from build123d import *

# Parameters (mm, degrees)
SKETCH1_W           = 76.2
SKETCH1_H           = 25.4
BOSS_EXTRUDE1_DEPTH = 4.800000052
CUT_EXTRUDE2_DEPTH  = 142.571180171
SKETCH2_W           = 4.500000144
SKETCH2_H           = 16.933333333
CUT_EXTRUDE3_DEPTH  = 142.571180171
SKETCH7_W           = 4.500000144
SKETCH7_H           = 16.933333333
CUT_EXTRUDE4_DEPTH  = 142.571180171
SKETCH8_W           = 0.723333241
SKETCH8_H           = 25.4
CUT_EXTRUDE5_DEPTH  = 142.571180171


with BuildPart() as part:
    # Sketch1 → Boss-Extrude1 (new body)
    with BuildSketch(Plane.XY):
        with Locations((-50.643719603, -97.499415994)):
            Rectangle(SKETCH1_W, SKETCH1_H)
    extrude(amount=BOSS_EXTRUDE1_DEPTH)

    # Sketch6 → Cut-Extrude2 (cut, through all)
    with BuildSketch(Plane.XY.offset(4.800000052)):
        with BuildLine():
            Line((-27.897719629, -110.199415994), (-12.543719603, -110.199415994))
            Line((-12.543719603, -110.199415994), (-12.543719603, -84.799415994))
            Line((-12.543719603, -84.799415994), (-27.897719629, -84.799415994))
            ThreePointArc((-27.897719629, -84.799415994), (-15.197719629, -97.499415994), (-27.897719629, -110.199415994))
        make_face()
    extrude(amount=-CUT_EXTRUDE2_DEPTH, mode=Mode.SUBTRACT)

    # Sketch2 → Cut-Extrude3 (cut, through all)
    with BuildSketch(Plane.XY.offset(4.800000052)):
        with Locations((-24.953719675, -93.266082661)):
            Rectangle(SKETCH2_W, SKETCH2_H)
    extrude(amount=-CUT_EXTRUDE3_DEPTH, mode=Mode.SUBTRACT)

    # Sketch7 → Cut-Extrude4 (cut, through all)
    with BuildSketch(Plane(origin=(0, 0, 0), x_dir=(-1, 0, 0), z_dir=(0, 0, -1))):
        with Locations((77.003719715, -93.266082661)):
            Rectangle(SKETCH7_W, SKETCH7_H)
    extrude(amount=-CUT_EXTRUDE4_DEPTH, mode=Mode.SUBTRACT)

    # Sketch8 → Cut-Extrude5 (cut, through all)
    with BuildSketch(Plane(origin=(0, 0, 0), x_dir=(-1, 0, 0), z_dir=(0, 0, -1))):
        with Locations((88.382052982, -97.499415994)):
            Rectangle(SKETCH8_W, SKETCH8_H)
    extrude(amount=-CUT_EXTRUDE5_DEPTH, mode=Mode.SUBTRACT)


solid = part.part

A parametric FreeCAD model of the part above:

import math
import FreeCAD as App
import Part
import Sketcher
from FreeCAD import Vector

doc = App.newDocument("Part")
body = doc.addObject("PartDesign::Body", "Body")

# Sketch on XY plane
sketch1 = body.newObject("Sketcher::SketchObject", "Sketch")
sketch1.AttachmentSupport = (doc.getObject("XY_Plane"), [""])
sketch1.MapMode = "FlatFace"
sketch1.addGeometry([
    Part.LineSegment(Vector(-89, -85, 0), Vector(-89, -110, 0)),
    Part.LineSegment(Vector(-89, -110, 0), Vector(-13, -110, 0)),
    Part.LineSegment(Vector(-13, -110, 0), Vector(-13, -85, 0)),
    Part.LineSegment(Vector(-13, -85, 0), Vector(-89, -85, 0)),
], False)
sketch1.addConstraint([
    Sketcher.Constraint("Coincident", 0, 2, 1, 1),
    Sketcher.Constraint("Coincident", 1, 2, 2, 1),
    Sketcher.Constraint("Coincident", 2, 2, 3, 1),
    Sketcher.Constraint("Coincident", 3, 2, 0, 1),
    Sketcher.Constraint("Vertical", 0),
    Sketcher.Constraint("Horizontal", 1),
    Sketcher.Constraint("Vertical", 2),
    Sketcher.Constraint("Horizontal", 3),
    Sketcher.Constraint("DistanceX", 1, 1, 1, 2, 76.2),
    Sketcher.Constraint("DistanceY", 0, 2, 0, 1, 25.4),
    Sketcher.Constraint("DistanceX", 0, 2, -1, 1, 88.74372),
    Sketcher.Constraint("DistanceY", 0, 2, -1, 1, 110.199416),
])
pad1 = body.newObject("PartDesign::Pad", "Pad")
pad1.Profile = sketch1
pad1.Length = 4.8

# Sketch on XY plane
sketch2 = body.newObject("Sketcher::SketchObject", "Sketch001")
sketch2.AttachmentSupport = (doc.getObject("XY_Plane"), [""])
sketch2.MapMode = "FlatFace"
sketch2.AttachmentOffset = App.Placement(Vector(0, 0, 4.8), App.Rotation())
sketch2.addGeometry([
    Part.LineSegment(Vector(-28, -110, 0), Vector(-13, -110, 0)),
    Part.LineSegment(Vector(-13, -110, 0), Vector(-13, -85, 0)),
    Part.LineSegment(Vector(-13, -85, 0), Vector(-28, -85, 0)),
    Part.ArcOfCircle(Part.Circle(Vector(-28, -97, 0), Vector(0, 0, 1), 13), math.radians(-90), math.radians(90)),
], False)
sketch2.addConstraint([
    Sketcher.Constraint("Coincident", 0, 2, 1, 1),
    Sketcher.Constraint("Coincident", 1, 2, 2, 1),
    Sketcher.Constraint("Tangent", 2, 2, 3, 2),
    Sketcher.Constraint("Tangent", 3, 1, 0, 1),
    Sketcher.Constraint("Horizontal", 0),
    Sketcher.Constraint("Vertical", 1),
    Sketcher.Constraint("Horizontal", 2),
    Sketcher.Constraint("Radius", 3, 12.7),
    Sketcher.Constraint("DistanceX", 0, 1, 0, 2, 15.354),
    Sketcher.Constraint("DistanceX", 3, 3, -1, 1, 27.89772),
    Sketcher.Constraint("DistanceY", 3, 3, -1, 1, 97.499416),
])
pocket1 = body.newObject("PartDesign::Pocket", "Pocket")
pocket1.Profile = sketch2
pocket1.Type = "ThroughAll"

# Sketch on XY plane
sketch3 = body.newObject("Sketcher::SketchObject", "Sketch002")
sketch3.AttachmentSupport = (doc.getObject("XY_Plane"), [""])
sketch3.MapMode = "FlatFace"
sketch3.AttachmentOffset = App.Placement(Vector(0, 0, 4.8), App.Rotation())
sketch3.addGeometry([
    Part.LineSegment(Vector(-27.2, -84.8, 0), Vector(-27.2, -101.7, 0)),
    Part.LineSegment(Vector(-27.2, -101.7, 0), Vector(-22.7, -101.7, 0)),
    Part.LineSegment(Vector(-22.7, -101.7, 0), Vector(-22.7, -84.8, 0)),
    Part.LineSegment(Vector(-22.7, -84.8, 0), Vector(-27.2, -84.8, 0)),
], False)
sketch3.addConstraint([
    Sketcher.Constraint("Coincident", 0, 2, 1, 1),
    Sketcher.Constraint("Coincident", 1, 2, 2, 1),
    Sketcher.Constraint("Coincident", 2, 2, 3, 1),
    Sketcher.Constraint("Coincident", 3, 2, 0, 1),
    Sketcher.Constraint("Vertical", 0),
    Sketcher.Constraint("Horizontal", 1),
    Sketcher.Constraint("Vertical", 2),
    Sketcher.Constraint("Horizontal", 3),
    Sketcher.Constraint("DistanceX", 1, 1, 1, 2, 4.5),
    Sketcher.Constraint("DistanceY", 0, 2, 0, 1, 16.933333),
    Sketcher.Constraint("DistanceX", 0, 2, -1, 1, 27.20372),
    Sketcher.Constraint("DistanceY", 0, 2, -1, 1, 101.732749),
])
pocket2 = body.newObject("PartDesign::Pocket", "Pocket001")
pocket2.Profile = sketch3
pocket2.Type = "ThroughAll"

# Sketch on XY plane
sketch4 = body.newObject("Sketcher::SketchObject", "Sketch003")
sketch4.AttachmentSupport = (doc.getObject("XY_Plane"), [""])
sketch4.MapMode = "FlatFace"
sketch4.addGeometry([
    Part.LineSegment(Vector(-74.8, -84.8, 0), Vector(-74.8, -101.7, 0)),
    Part.LineSegment(Vector(-74.8, -101.7, 0), Vector(-79.3, -101.7, 0)),
    Part.LineSegment(Vector(-79.3, -101.7, 0), Vector(-79.3, -84.8, 0)),
    Part.LineSegment(Vector(-79.3, -84.8, 0), Vector(-74.8, -84.8, 0)),
], False)
sketch4.addConstraint([
    Sketcher.Constraint("Coincident", 0, 2, 1, 1),
    Sketcher.Constraint("Coincident", 1, 2, 2, 1),
    Sketcher.Constraint("Coincident", 2, 2, 3, 1),
    Sketcher.Constraint("Coincident", 3, 2, 0, 1),
    Sketcher.Constraint("Vertical", 0),
    Sketcher.Constraint("Horizontal", 1),
    Sketcher.Constraint("Vertical", 2),
    Sketcher.Constraint("Horizontal", 3),
    Sketcher.Constraint("DistanceX", 1, 2, 1, 1, 4.5),
    Sketcher.Constraint("DistanceY", 0, 2, 0, 1, 16.933333),
    Sketcher.Constraint("DistanceX", 0, 2, -1, 1, 74.75372),
    Sketcher.Constraint("DistanceY", 0, 2, -1, 1, 101.732749),
])
pocket3 = body.newObject("PartDesign::Pocket", "Pocket002")
pocket3.Profile = sketch4
pocket3.Type = "ThroughAll"
pocket3.Reversed = True

# Sketch on XY plane
sketch5 = body.newObject("Sketcher::SketchObject", "Sketch004")
sketch5.AttachmentSupport = (doc.getObject("XY_Plane"), [""])
sketch5.MapMode = "FlatFace"
sketch5.addGeometry([
    Part.LineSegment(Vector(-88, -84.8, 0), Vector(-88, -110.2, 0)),
    Part.LineSegment(Vector(-88, -110.2, 0), Vector(-88.7, -110.2, 0)),
    Part.LineSegment(Vector(-88.7, -110.2, 0), Vector(-88.7, -84.8, 0)),
    Part.LineSegment(Vector(-88.7, -84.8, 0), Vector(-88, -84.8, 0)),
], False)
sketch5.addConstraint([
    Sketcher.Constraint("Coincident", 0, 2, 1, 1),
    Sketcher.Constraint("Coincident", 1, 2, 2, 1),
    Sketcher.Constraint("Coincident", 2, 2, 3, 1),
    Sketcher.Constraint("Coincident", 3, 2, 0, 1),
    Sketcher.Constraint("Vertical", 0),
    Sketcher.Constraint("Horizontal", 1),
    Sketcher.Constraint("Vertical", 2),
    Sketcher.Constraint("Horizontal", 3),
    Sketcher.Constraint("DistanceY", 0, 2, 0, 1, 25.4),
    Sketcher.Constraint("DistanceX", 1, 2, 1, 1, 0.723333),
    Sketcher.Constraint("DistanceX", 1, 2, -1, 1, 88.74372),
    Sketcher.Constraint("DistanceY", 0, 2, -1, 1, 110.199416),
])
pocket4 = body.newObject("PartDesign::Pocket", "Pocket003")
pocket4.Profile = sketch5
pocket4.Type = "ThroughAll"
pocket4.Reversed = True

doc.recompute()
